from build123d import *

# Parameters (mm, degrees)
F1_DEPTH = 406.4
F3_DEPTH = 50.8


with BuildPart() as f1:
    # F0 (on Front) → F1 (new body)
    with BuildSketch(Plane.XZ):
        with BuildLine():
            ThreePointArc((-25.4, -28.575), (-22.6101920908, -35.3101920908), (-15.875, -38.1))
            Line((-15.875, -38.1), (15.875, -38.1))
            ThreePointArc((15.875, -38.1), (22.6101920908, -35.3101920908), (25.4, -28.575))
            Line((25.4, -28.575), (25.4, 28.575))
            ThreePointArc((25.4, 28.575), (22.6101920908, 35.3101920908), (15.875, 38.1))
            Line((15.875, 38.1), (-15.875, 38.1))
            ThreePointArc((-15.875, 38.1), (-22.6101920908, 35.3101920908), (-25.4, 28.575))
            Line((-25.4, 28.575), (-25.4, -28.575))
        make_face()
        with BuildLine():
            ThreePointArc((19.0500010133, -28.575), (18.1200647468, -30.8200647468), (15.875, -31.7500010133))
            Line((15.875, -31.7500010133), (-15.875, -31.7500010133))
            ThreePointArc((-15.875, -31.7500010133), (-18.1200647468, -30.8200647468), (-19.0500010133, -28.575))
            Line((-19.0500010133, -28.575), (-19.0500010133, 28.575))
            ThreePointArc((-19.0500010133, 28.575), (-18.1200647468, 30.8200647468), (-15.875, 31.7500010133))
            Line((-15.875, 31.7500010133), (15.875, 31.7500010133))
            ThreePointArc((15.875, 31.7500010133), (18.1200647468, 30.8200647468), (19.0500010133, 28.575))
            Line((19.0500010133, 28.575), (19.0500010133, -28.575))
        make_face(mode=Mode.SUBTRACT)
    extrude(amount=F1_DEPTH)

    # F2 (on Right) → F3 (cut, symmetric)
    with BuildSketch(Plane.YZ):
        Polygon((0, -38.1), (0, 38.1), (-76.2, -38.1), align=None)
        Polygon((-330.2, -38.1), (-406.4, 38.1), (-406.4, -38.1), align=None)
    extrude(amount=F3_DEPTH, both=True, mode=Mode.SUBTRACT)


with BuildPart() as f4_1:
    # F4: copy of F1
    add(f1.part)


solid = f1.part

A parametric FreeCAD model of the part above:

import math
import FreeCAD as App
import Part
import Sketcher
Q = App.Units.Quantity


def add_polygon(sketch, points):
    """Adds a closed chain of lines whose ends are joined by coincident constraints."""
    first, n = sketch.GeometryCount, len(points)
    for a, b in zip(points, points[1:] + points[:1]):
        sketch.addGeometry(Part.LineSegment(App.Vector(*a, 0), App.Vector(*b, 0)), False)
    for i in range(n):
        sketch.addConstraint(Sketcher.Constraint("Coincident", first + i, 2, first + (i + 1) % n, 1))

doc = App.newDocument("Part")
params = doc.addObject("Spreadsheet::Sheet", "Params")
for row, (alias, value) in enumerate([
    ("sketch1_radius", "0.375 in"),
    ("sketch1_radius2", "0.125 in"),
    ("sketch1_height", "2.25 in"),
    ("pad1_length", "16 in"),
    ("sketch2_width", "3 in"),
    ("pocket1_length", "4 in"),
], start=1):
    params.set(f"A{row}", alias)
    params.set(f"B{row}", "=" + value)
    params.setAlias(f"B{row}", alias)

body = doc.addObject("PartDesign::Body", "Body")

sketch1 = body.newObject("Sketcher::SketchObject", "Sketch")
sketch1.AttachmentSupport = (doc.getObject("XZ_Plane"), [""])
sketch1.MapMode = "FlatFace"
sketch1.addGeometry([
    Part.ArcOfCircle(Part.Circle(App.Vector(-15.875, -28.575, 0), App.Vector(0, 0, 1), 9.525), math.radians(180), math.radians(270)),
    Part.LineSegment(App.Vector(-15.875, -38.1, 0), App.Vector(15.875, -38.1, 0)),
    Part.ArcOfCircle(Part.Circle(App.Vector(15.875, -28.575, 0), App.Vector(0, 0, 1), 9.525), math.radians(-90), math.radians(0)),
    Part.LineSegment(App.Vector(25.4, -28.575, 0), App.Vector(25.4, 28.575, 0)),
    Part.ArcOfCircle(Part.Circle(App.Vector(15.875, 28.575, 0), App.Vector(0, 0, 1), 9.525), math.radians(0), math.radians(90)),
    Part.LineSegment(App.Vector(15.875, 38.1, 0), App.Vector(-15.875, 38.1, 0)),
    Part.ArcOfCircle(Part.Circle(App.Vector(-15.875, 28.575, 0), App.Vector(0, 0, 1), 9.525), math.radians(90), math.radians(180)),
    Part.LineSegment(App.Vector(-25.4, 28.575, 0), App.Vector(-25.4, -28.575, 0)),
    Part.LineSegment(App.Vector(19.050001, 28.575, 0), App.Vector(19.050001, -28.575, 0)),
    Part.ArcOfCircle(Part.Circle(App.Vector(15.875, -28.575, 0), App.Vector(0, 0, 1), 3.175001), math.radians(-90), math.radians(0)),
    Part.LineSegment(App.Vector(15.875, -31.750001, 0), App.Vector(-15.875, -31.750001, 0)),
    Part.ArcOfCircle(Part.Circle(App.Vector(-15.875, -28.575, 0), App.Vector(0, 0, 1), 3.175001), math.radians(180), math.radians(270)),
    Part.LineSegment(App.Vector(-19.050001, -28.575, 0), App.Vector(-19.050001, 28.575, 0)),
    Part.ArcOfCircle(Part.Circle(App.Vector(-15.875, 28.575, 0), App.Vector(0, 0, 1), 3.175001), math.radians(90), math.radians(180)),
    Part.LineSegment(App.Vector(-15.875, 31.750001, 0), App.Vector(15.875, 31.750001, 0)),
    Part.ArcOfCircle(Part.Circle(App.Vector(15.875, 28.575, 0), App.Vector(0, 0, 1), 3.175001), math.radians(0), math.radians(90)),
], False)
sketch1.addConstraint([
    Sketcher.Constraint("Tangent", 0, 2, 1, 1),
    Sketcher.Constraint("Tangent", 1, 2, 2, 1),
    Sketcher.Constraint("Tangent", 2, 2, 3, 1),
    Sketcher.Constraint("Tangent", 3, 2, 4, 1),
    Sketcher.Constraint("Tangent", 4, 2, 5, 1),
    Sketcher.Constraint("Tangent", 5, 2, 6, 1),
    Sketcher.Constraint("Tangent", 6, 2, 7, 1),
    Sketcher.Constraint("Tangent", 7, 2, 0, 1),
    Sketcher.Constraint("Tangent", 8, 2, 9, 2),
    Sketcher.Constraint("Tangent", 9, 1, 10, 1),
    Sketcher.Constraint("Tangent", 10, 2, 11, 2),
    Sketcher.Constraint("Tangent", 11, 1, 12, 1),
    Sketcher.Constraint("Tangent", 12, 2, 13, 2),
    Sketcher.Constraint("Tangent", 13, 1, 14, 1),
    Sketcher.Constraint("Tangent", 14, 2, 15, 2),
    Sketcher.Constraint("Tangent", 15, 1, 8, 1),
    Sketcher.Constraint("Horizontal", 1),
    Sketcher.Constraint("Vertical", 3),
    Sketcher.Constraint("Horizontal", 5),
    Sketcher.Constraint("Vertical", 7),
    Sketcher.Constraint("Vertical", 8),
    Sketcher.Constraint("Horizontal", 10),
    Sketcher.Constraint("Vertical", 12),
    Sketcher.Constraint("Horizontal", 14),
    Sketcher.Constraint("Coincident", 9, 3, 2, 3),
    Sketcher.Constraint("Coincident", 11, 3, 0, 3),
    Sketcher.Constraint("Coincident", 13, 3, 6, 3),
    Sketcher.Constraint("Equal", 0, 2),
    Sketcher.Constraint("Equal", 2, 4),
    Sketcher.Constraint("Equal", 4, 6),
    Sketcher.Constraint("Equal", 13, 15),
    Sketcher.Constraint("Symmetric", 0, 3, 4, 3, -1, 1),
    Sketcher.Constraint("DistanceX", -1, 1, 2, 2, Q("1 in")),
    Sketcher.Constraint("Radius", 0, Q("0.375 in")),
    Sketcher.Constraint("Radius", 9, Q("0.125 in")),
    Sketcher.Constraint("DistanceY", 3, 1, 3, 2, Q("2.25 in")),
])
sketch1.setExpression("Constraints[33]", "Params.sketch1_radius")
sketch1.setExpression("Constraints[34]", "Params.sketch1_radius2")
sketch1.setExpression("Constraints[35]", "Params.sketch1_height")
pad1 = body.newObject("PartDesign::Pad", "Pad")
pad1.Profile = sketch1
pad1.setExpression("Length", "Params.pad1_length")

sketch2 = body.newObject("Sketcher::SketchObject", "Sketch001")
sketch2.AttachmentSupport = (doc.getObject("YZ_Plane"), [""])
sketch2.MapMode = "FlatFace"
add_polygon(sketch2, [(0, -38.1), (0, 38.1), (-76.2, -38.1)])
add_polygon(sketch2, [(-330.2, -38.1), (-406.4, 38.1), (-406.4, -38.1)])
sketch2.addConstraint([
    Sketcher.Constraint("Vertical", 0),
    Sketcher.Constraint("Horizontal", 2),
    Sketcher.Constraint("Vertical", 4),
    Sketcher.Constraint("Horizontal", 5),
    Sketcher.Constraint("Symmetric", 0, 2, 2, 2, -1, 1),
    Sketcher.Constraint("Perpendicular", 1, 3),
    Sketcher.Constraint("Horizontal", 0, 2, 3, 2),
    Sketcher.Constraint("Horizontal", 2, 2, 4, 2),
    Sketcher.Constraint("Equal", 2, 5),
    Sketcher.Constraint("DistanceX", 2, 1, 2, 2, Q("3 in")),
    Sketcher.Constraint("DistanceX", 3, 2, -1, 1, Q("16 in")),
])
sketch2.setExpression("Constraints[15]", "Params.sketch2_width")
pocket1 = body.newObject("PartDesign::Pocket", "Pocket")
pocket1.Profile = sketch2
pocket1.setExpression("Length", "Params.pocket1_length")
pocket1.Midplane = True
body2 = doc.addObject("PartDesign::Body", "Body001")
doc.recompute()

body2.BaseFeature = body
doc.recompute()
body.Visibility = False

doc.recompute()
